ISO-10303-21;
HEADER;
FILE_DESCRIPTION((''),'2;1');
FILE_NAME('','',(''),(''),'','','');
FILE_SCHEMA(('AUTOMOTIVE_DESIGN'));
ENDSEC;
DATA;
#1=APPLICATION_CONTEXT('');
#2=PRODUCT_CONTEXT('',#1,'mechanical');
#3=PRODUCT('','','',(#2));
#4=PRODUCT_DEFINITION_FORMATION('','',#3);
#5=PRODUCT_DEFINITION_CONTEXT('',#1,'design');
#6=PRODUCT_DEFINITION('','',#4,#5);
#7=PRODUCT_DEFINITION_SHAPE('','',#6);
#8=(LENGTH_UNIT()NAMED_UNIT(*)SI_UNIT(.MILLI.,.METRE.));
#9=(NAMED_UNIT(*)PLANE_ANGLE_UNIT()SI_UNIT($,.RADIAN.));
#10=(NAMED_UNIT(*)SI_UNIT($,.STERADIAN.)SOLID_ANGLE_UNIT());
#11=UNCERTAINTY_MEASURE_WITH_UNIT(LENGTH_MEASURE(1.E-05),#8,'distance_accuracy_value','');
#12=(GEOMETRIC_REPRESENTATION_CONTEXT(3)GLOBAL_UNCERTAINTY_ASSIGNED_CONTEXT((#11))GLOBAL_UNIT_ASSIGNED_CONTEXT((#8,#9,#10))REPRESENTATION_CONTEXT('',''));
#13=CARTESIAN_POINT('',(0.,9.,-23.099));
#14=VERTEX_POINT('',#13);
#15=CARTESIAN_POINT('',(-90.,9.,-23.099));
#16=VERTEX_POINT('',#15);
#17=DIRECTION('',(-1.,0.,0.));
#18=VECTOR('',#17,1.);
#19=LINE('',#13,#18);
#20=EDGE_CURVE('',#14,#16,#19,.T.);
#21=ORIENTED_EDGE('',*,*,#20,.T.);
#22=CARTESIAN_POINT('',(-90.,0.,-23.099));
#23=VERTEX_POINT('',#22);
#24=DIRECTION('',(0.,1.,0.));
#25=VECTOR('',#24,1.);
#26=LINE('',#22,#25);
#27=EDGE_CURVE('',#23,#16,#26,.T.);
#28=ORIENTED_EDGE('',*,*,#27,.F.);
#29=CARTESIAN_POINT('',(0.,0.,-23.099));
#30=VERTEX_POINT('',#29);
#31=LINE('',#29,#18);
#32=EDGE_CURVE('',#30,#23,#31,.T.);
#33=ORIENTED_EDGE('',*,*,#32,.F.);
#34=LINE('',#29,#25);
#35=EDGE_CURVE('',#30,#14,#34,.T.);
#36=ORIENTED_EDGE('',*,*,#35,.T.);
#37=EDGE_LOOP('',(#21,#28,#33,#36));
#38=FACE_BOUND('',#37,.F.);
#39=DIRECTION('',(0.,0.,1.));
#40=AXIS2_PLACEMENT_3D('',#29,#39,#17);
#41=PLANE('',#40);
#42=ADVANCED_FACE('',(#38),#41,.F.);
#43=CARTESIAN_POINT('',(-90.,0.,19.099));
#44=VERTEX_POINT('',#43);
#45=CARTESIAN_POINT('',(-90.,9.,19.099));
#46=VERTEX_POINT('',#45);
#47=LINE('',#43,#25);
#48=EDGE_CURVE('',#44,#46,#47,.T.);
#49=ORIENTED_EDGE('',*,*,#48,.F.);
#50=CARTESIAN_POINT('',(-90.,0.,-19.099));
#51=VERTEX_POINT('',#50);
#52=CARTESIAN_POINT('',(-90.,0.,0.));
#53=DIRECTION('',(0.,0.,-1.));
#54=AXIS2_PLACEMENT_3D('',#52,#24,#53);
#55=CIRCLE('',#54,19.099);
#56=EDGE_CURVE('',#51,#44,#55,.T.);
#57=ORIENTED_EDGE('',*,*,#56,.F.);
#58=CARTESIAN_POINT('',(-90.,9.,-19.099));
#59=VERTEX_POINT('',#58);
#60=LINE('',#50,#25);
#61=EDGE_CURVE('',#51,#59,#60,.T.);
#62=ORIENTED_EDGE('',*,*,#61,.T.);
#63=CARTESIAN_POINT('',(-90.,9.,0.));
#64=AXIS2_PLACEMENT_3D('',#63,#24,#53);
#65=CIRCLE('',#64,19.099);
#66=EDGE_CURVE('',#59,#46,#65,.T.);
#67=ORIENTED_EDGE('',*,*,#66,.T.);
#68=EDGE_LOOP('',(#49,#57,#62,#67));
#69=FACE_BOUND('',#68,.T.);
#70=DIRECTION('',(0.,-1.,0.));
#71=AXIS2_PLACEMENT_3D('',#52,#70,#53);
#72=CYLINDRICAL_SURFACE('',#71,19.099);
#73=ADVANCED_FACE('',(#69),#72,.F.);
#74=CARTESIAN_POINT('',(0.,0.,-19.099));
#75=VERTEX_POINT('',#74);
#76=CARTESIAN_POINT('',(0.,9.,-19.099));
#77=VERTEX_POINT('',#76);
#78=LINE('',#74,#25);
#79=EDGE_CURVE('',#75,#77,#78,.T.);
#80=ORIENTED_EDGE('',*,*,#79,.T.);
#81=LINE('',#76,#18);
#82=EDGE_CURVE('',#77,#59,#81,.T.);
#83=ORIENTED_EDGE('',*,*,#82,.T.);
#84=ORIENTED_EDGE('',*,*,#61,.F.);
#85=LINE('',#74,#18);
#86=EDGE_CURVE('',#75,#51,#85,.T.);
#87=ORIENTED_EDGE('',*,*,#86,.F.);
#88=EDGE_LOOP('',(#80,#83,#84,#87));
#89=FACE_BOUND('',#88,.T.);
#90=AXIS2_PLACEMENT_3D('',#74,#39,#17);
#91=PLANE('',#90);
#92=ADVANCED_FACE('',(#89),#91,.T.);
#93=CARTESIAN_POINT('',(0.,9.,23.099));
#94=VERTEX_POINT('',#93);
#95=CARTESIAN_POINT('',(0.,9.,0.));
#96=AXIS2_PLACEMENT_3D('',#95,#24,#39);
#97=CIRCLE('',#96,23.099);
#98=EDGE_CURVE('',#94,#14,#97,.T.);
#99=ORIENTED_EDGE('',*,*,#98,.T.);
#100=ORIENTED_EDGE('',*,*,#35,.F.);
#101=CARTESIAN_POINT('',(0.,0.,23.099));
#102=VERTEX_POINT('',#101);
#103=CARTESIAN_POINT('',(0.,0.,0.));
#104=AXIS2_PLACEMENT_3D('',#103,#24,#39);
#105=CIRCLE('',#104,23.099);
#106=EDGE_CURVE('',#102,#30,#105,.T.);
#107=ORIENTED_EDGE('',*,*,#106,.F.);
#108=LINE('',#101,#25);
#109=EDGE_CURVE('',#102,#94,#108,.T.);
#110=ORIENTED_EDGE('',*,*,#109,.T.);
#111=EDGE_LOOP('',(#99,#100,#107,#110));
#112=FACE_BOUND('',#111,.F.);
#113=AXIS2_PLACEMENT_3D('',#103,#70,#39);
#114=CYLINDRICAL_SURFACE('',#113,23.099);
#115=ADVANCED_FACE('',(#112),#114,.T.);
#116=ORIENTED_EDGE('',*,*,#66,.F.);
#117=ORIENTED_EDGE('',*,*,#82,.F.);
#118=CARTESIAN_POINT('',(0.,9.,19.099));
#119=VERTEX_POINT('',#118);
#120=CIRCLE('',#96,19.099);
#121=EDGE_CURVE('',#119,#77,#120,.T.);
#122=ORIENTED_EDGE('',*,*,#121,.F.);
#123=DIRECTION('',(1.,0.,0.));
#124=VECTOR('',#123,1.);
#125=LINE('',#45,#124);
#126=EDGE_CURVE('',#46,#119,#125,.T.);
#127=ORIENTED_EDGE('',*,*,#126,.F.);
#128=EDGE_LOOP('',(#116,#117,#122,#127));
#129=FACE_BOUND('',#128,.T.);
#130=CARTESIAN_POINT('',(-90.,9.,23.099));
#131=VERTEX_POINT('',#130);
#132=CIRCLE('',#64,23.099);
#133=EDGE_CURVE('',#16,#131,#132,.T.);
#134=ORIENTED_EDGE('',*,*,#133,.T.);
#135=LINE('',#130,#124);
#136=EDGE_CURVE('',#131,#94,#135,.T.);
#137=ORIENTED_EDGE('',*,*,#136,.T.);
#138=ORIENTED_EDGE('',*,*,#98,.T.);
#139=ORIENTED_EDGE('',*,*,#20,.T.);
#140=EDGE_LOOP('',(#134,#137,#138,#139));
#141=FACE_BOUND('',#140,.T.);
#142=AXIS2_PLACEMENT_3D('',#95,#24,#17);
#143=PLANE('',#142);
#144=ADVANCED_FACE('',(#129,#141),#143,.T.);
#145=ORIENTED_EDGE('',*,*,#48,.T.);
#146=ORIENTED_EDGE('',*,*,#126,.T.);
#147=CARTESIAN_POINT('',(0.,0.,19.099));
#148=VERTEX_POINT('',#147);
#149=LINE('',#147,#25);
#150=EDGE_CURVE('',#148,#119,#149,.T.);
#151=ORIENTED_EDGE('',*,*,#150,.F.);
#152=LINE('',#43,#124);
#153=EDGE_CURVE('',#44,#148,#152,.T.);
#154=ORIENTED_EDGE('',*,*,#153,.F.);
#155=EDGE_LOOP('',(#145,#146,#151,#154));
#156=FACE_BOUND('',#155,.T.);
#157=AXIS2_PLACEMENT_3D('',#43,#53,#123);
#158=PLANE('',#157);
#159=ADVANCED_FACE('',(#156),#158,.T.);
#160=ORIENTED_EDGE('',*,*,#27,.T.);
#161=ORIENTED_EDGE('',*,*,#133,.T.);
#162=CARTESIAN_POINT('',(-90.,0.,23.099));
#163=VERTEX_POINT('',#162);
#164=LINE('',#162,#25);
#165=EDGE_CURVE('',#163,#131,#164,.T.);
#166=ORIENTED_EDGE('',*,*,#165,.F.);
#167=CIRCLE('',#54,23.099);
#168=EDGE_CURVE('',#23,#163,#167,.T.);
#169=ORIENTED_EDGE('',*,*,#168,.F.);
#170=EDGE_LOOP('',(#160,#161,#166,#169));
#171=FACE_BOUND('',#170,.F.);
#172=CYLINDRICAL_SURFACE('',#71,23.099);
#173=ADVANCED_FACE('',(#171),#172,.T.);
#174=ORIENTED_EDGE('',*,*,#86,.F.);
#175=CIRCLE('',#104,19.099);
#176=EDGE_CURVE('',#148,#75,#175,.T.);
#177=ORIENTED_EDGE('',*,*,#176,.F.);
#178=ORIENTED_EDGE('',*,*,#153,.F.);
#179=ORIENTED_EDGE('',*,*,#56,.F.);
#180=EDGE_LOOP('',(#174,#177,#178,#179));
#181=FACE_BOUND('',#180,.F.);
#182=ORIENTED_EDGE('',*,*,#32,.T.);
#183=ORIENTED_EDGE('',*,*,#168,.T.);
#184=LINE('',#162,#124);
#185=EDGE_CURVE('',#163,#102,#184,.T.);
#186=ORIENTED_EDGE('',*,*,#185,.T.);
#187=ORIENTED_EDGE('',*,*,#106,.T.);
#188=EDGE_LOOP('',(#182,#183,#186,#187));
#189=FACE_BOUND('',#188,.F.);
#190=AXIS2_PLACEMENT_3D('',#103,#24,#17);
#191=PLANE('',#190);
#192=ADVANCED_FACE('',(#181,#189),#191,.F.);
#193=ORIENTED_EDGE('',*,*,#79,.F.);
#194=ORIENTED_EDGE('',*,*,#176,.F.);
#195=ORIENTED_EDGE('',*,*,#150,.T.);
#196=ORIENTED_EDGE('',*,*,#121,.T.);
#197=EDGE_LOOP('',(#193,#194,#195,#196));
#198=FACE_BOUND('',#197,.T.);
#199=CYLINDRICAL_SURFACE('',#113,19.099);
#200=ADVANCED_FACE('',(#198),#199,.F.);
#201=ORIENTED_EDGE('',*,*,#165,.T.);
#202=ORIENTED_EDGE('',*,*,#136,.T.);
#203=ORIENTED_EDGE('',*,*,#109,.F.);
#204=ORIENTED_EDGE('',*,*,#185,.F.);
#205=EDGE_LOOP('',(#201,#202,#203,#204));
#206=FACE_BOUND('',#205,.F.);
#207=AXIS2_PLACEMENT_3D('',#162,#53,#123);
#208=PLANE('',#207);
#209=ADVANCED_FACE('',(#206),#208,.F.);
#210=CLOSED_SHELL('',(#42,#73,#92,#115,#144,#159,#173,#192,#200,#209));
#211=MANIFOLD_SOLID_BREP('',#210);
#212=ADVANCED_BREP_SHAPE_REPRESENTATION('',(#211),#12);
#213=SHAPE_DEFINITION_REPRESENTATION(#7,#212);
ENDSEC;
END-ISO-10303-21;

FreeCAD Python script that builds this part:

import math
import FreeCAD as App
import Part
import Sketcher

V = App.Vector

doc = App.newDocument("Part")
body = doc.addObject("PartDesign::Body", "Body")

# Sketch on XZ plane
sketch1 = doc.addObject("Sketcher::SketchObject", "Sketch")
body.addObject(sketch1)
sketch1.AttachmentSupport = (doc.XZ_Plane, [""])
sketch1.MapMode = "FlatFace"
sketch1.addGeometry([
    Part.ArcOfCircle(Part.Circle(V(-90, 0, 0), V(0, 0, 1), 23.099), math.radians(90), math.radians(270)),  # 0
    Part.LineSegment(V(-90, 23.099, 0), V(0, 23.099, 0)),  # 1
    Part.ArcOfCircle(Part.Circle(V(0, 0, 0), V(0, 0, 1), 23.099), math.radians(-90), math.radians(90)),  # 2
    Part.LineSegment(V(0, -23.099, 0), V(-90, -23.099, 0)),  # 3
    Part.LineSegment(V(-90, -19.099, 0), V(0, -19.099, 0)),  # 4
    Part.ArcOfCircle(Part.Circle(V(0, 0, 0), V(0, 0, 1), 19.099), math.radians(-90), math.radians(90)),  # 5
    Part.LineSegment(V(0, 19.099, 0), V(-90, 19.099, 0)),  # 6
    Part.ArcOfCircle(Part.Circle(V(-90, 0, 0), V(0, 0, 1), 19.099), math.radians(90), math.radians(270)),  # 7
], False)
sketch1.addConstraint([
    Sketcher.Constraint("Tangent", 0, 1, 1, 1),
    Sketcher.Constraint("Tangent", 1, 2, 2, 2),
    Sketcher.Constraint("Tangent", 2, 1, 3, 1),
    Sketcher.Constraint("Tangent", 3, 2, 0, 2),
    Sketcher.Constraint("Tangent", 4, 2, 5, 1),
    Sketcher.Constraint("Tangent", 5, 2, 6, 1),
    Sketcher.Constraint("Tangent", 6, 2, 7, 1),
    Sketcher.Constraint("Tangent", 7, 2, 4, 1),
    Sketcher.Constraint("Horizontal", 1),
    Sketcher.Constraint("Horizontal", 3),
    Sketcher.Constraint("Horizontal", 4),
    Sketcher.Constraint("Horizontal", 6),
    Sketcher.Constraint("Coincident", 2, 3, -1, 1),
    Sketcher.Constraint("Coincident", 5, 3, -1, 1),
    Sketcher.Constraint("Vertical", 7, 3, 0, 1),
    Sketcher.Constraint("DistanceX", 1, 1, 1, 2, 90.0),
    Sketcher.Constraint("Radius", 5, 19.099),
    Sketcher.Constraint("DistanceY", 2, 1, 4, 2, 4.0),
])
pad1 = doc.addObject("PartDesign::Pad", "Pad")
body.addObject(pad1)
pad1.Profile = sketch1
pad1.Length = 9
pad1.Reversed = True

doc.recompute()
